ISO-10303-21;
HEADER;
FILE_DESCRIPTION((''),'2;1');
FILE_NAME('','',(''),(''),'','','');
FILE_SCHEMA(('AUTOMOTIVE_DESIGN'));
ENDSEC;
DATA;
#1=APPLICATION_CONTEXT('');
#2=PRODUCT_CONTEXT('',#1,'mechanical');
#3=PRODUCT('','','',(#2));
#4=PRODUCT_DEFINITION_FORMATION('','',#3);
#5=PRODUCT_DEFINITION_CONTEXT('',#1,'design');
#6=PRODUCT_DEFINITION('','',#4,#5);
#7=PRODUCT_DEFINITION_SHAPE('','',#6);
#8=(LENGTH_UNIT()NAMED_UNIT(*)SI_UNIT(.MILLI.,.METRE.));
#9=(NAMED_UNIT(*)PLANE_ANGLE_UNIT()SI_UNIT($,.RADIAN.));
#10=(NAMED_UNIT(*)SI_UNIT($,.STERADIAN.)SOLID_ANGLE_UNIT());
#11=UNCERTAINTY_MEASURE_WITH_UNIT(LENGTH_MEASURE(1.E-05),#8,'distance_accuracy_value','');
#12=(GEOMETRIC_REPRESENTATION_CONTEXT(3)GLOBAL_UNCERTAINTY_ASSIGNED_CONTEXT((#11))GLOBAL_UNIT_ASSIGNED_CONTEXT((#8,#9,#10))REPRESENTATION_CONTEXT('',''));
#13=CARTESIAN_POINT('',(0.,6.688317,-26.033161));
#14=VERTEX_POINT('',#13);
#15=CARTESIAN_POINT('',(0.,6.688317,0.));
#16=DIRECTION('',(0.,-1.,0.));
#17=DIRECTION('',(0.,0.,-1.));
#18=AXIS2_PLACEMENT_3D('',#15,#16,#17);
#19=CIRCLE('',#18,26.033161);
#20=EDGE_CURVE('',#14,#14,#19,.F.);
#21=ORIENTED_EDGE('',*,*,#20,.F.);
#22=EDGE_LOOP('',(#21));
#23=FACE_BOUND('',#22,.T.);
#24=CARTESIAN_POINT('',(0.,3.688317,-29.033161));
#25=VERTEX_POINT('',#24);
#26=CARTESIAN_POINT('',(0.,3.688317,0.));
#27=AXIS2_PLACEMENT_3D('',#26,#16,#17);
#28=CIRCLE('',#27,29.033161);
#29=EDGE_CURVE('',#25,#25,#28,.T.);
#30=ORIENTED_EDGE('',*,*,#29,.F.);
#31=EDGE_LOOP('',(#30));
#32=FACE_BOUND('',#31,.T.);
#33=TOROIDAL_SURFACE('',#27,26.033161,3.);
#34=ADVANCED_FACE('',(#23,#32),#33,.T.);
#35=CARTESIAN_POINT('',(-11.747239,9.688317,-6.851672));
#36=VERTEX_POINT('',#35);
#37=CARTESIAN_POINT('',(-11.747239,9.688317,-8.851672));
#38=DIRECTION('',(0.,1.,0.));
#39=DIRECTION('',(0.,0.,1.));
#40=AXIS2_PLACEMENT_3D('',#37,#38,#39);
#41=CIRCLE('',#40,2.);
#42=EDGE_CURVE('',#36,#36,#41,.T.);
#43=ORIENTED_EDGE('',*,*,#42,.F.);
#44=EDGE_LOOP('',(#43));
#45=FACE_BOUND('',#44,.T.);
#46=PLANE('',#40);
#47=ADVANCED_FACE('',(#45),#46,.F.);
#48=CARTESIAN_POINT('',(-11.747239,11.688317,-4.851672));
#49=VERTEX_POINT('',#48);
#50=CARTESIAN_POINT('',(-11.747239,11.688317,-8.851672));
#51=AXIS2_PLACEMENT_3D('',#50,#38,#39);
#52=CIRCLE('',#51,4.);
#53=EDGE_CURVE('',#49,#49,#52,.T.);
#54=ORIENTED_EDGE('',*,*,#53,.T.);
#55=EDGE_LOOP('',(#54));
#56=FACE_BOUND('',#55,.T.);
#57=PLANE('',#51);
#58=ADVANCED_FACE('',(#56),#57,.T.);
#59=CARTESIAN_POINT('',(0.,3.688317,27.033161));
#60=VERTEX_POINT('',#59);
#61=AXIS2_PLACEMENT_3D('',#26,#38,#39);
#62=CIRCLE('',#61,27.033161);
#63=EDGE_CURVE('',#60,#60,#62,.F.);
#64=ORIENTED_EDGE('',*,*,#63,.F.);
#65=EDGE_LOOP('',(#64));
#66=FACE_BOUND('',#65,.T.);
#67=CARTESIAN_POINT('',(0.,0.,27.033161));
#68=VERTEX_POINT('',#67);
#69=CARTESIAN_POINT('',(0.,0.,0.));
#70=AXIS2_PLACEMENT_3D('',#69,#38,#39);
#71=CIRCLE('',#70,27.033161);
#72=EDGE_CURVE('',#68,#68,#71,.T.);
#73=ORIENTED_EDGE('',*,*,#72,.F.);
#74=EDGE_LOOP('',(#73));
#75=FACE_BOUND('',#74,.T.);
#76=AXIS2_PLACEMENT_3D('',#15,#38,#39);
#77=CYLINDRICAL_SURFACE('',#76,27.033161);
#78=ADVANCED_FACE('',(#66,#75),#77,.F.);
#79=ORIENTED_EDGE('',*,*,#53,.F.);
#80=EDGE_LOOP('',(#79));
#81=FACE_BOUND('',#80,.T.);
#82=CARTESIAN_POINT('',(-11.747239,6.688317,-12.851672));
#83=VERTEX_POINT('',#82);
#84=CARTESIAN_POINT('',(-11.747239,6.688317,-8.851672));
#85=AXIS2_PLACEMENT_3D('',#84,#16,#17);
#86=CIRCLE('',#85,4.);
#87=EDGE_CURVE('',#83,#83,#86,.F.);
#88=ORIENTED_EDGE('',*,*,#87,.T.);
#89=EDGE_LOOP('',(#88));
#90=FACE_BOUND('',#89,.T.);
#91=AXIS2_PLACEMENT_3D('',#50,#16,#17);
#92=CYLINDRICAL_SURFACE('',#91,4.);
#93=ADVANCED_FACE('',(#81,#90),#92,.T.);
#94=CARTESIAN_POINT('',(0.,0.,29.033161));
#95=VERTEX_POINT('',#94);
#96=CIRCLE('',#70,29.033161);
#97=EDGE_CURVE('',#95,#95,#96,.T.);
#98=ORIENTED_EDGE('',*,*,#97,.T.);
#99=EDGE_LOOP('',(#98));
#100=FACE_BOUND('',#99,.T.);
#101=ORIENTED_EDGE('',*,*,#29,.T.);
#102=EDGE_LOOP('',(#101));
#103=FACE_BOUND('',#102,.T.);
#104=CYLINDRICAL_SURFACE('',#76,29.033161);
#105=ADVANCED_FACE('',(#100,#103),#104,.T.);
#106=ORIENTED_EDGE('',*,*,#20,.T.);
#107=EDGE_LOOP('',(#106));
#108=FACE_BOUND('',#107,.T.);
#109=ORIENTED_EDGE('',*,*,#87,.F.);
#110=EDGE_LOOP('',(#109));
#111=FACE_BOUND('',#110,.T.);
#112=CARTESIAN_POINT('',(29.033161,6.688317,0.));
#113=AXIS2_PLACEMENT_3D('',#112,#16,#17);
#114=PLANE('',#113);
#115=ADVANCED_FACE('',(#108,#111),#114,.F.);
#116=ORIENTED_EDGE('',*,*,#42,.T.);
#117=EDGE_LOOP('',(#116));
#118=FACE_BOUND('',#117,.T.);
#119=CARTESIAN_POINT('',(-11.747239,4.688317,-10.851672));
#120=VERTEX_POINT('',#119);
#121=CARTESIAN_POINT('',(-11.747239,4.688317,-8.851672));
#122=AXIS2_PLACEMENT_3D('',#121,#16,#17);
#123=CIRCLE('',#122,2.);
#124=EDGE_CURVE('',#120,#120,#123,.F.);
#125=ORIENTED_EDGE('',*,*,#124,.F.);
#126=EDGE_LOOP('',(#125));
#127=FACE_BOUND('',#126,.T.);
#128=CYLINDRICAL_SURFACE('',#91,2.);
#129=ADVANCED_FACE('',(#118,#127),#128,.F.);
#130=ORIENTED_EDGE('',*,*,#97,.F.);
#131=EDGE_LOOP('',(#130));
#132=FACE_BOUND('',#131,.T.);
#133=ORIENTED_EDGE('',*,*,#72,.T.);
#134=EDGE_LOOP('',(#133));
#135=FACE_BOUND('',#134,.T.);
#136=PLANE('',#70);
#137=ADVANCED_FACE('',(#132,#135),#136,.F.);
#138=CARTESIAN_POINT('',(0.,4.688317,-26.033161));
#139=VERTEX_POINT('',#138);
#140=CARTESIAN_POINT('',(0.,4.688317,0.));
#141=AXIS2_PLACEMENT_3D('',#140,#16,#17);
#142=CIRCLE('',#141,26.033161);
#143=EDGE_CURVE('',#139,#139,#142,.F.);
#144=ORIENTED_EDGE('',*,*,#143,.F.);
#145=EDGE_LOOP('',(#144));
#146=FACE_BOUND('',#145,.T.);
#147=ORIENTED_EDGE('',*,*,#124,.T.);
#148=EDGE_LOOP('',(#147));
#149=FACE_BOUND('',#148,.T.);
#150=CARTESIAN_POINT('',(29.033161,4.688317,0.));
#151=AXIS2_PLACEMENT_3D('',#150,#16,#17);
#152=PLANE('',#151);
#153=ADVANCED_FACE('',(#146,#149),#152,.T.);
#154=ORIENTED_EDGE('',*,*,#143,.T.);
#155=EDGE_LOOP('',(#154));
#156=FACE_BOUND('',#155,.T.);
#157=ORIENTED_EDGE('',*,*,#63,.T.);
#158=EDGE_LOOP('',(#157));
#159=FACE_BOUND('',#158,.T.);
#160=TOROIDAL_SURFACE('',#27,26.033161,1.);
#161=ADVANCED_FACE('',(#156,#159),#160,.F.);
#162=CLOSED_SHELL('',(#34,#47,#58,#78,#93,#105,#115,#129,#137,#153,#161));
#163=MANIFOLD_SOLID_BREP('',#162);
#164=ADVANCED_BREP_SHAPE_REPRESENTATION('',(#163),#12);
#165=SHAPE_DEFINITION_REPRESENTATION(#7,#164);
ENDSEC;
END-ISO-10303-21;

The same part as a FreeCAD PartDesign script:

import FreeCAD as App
import Part
import Sketcher

V = App.Vector


def edges_at(feature, points):
    """Names of the edges that pass closest to the given points."""
    edges = feature.Shape.Edges
    near = lambda p: min(range(len(edges)), key=lambda i: edges[i].distToShape(Part.Vertex(*p))[0])
    return sorted({f"Edge{near(p) + 1}" for p in points})


def faces_at(feature, points):
    """Names of the faces that lie closest to the given points."""
    faces = feature.Shape.Faces
    near = lambda p: min(range(len(faces)), key=lambda i: faces[i].distToShape(Part.Vertex(*p))[0])
    return sorted({f"Face{near(p) + 1}" for p in points})

doc = App.newDocument("Part")
body = doc.addObject("PartDesign::Body", "Body")

sketch1 = body.newObject("Sketcher::SketchObject", "Sketch")
sketch1.AttachmentSupport = (doc.getObject("XY_Plane"), [""])
sketch1.MapMode = "FlatFace"
sketch1.addGeometry([
    Part.LineSegment(V(0, 7, 0), V(0, 0, 0)),
    Part.LineSegment(V(0, 0, 0), V(29, 0, 0)),
    Part.LineSegment(V(29, 0, 0), V(29, 7, 0)),
    Part.LineSegment(V(29, 7, 0), V(0, 7, 0)),
], False)
sketch1.addConstraint([
    Sketcher.Constraint("Coincident", 0, 2, 1, 1),
    Sketcher.Constraint("Coincident", 1, 2, 2, 1),
    Sketcher.Constraint("Coincident", 2, 2, 3, 1),
    Sketcher.Constraint("Coincident", 3, 2, 0, 1),
    Sketcher.Constraint("Vertical", 0),
    Sketcher.Constraint("Horizontal", 1),
    Sketcher.Constraint("Vertical", 2),
    Sketcher.Constraint("Horizontal", 3),
    Sketcher.Constraint("Coincident", 0, 2, -1, 1),
    Sketcher.Constraint("DistanceX", 1, 1, 1, 2, 29.033161),
    Sketcher.Constraint("DistanceY", 0, 2, 0, 1, 6.688317),
])
revolution = body.newObject("PartDesign::Revolution", "Revolution")
revolution.Profile = sketch1
revolution.ReferenceAxis = (sketch1, ["V_Axis"])
revolution.Angle = 360
doc.recompute()

fillet = body.newObject("PartDesign::Fillet", "Fillet")
fillet.Base = (revolution, edges_at(revolution, [(0, 6.688, -29.033)]))
fillet.Radius = 3

sketch2 = body.newObject("Sketcher::SketchObject", "Sketch001")
sketch2.AttachmentSupport = (doc.getObject("XZ_Plane"), [""])
sketch2.MapMode = "FlatFace"
sketch2.AttachmentOffset = App.Placement(V(0, 0, -6.688317), App.Rotation())
sketch2.addGeometry(Part.Circle(V(-11.7, -8.9, 0), V(0, 0, 1), 4), False)
sketch2.addConstraint([
    Sketcher.Constraint("Diameter", 0, 8.0),
    Sketcher.Constraint("DistanceX", 0, 3, -1, 1, 11.747239),
    Sketcher.Constraint("DistanceY", 0, 3, -1, 1, 8.851672),
])
pad1 = body.newObject("PartDesign::Pad", "Pad")
pad1.Profile = sketch2
pad1.Length = 5
pad1.Reversed = True
doc.recompute()

thickness = body.newObject("PartDesign::Thickness", "Thickness")
thickness.Base = (pad1, faces_at(pad1, [(0, 0, 0)]))
thickness.Value = 2
thickness.Reversed = True
thickness.Join = "Intersection"

doc.recompute()
